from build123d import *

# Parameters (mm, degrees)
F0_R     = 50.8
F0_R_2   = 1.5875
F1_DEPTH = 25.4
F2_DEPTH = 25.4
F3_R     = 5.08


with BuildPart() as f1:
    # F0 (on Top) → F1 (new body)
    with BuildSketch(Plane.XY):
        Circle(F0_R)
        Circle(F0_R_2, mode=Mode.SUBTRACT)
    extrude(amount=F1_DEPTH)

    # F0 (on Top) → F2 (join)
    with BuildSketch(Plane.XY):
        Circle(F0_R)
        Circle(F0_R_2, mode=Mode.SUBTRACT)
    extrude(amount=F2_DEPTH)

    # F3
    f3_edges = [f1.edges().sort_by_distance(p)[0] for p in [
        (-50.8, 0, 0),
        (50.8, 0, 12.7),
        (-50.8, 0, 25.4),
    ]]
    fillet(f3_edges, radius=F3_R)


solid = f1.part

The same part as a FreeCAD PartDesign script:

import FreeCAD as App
import Part
import Sketcher

V = App.Vector
Q = App.Units.Quantity


def edges_at(feature, points):
    """Names of the edges that pass closest to the given points."""
    edges = feature.Shape.Edges
    near = lambda p: min(range(len(edges)), key=lambda i: edges[i].distToShape(Part.Vertex(*p))[0])
    return sorted({f"Edge{near(p) + 1}" for p in points})

doc = App.newDocument("Part")
body = doc.addObject("PartDesign::Body", "Body")

# Sketch on XY plane
sketch1 = body.newObject("Sketcher::SketchObject", "Sketch")
sketch1.AttachmentSupport = (doc.getObject("XY_Plane"), [""])
sketch1.MapMode = "FlatFace"
sketch1.addGeometry([
    Part.Circle(V(0, 0, 0), V(0, 0, 1), 50.8),
    Part.Circle(V(0, 0, 0), V(0, 0, 1), 1.6),
], False)
sketch1.addConstraint([
    Sketcher.Constraint("Coincident", 0, 3, -1, 1),
    Sketcher.Constraint("Coincident", 1, 3, -1, 1),
    Sketcher.Constraint("Diameter", 0, Q("4 in")),
    Sketcher.Constraint("Diameter", 1, Q("0.125 in")),
])
pad1 = body.newObject("PartDesign::Pad", "Pad")
pad1.Profile = sketch1
pad1.Length = Q("1 in")

# Sketch on XY plane
sketch2 = body.newObject("Sketcher::SketchObject", "Sketch001")
sketch2.AttachmentSupport = (doc.getObject("XY_Plane"), [""])
sketch2.MapMode = "FlatFace"
sketch2.addGeometry([
    Part.Circle(V(0, 0, 0), V(0, 0, 1), 50.8),
    Part.Circle(V(0, 0, 0), V(0, 0, 1), 1.6),
], False)
sketch2.addConstraint([
    Sketcher.Constraint("Coincident", 0, 3, -1, 1),
    Sketcher.Constraint("Coincident", 1, 3, -1, 1),
    Sketcher.Constraint("Diameter", 0, Q("4 in")),
    Sketcher.Constraint("Diameter", 1, Q("0.125 in")),
])
pad2 = body.newObject("PartDesign::Pad", "Pad001")
pad2.Profile = sketch2
pad2.Length = Q("1 in")
doc.recompute()

fillet = body.newObject("PartDesign::Fillet", "Fillet")
fillet.Base = (pad2, edges_at(pad2, [(-50.8, 0, 0), (50.8, 0, 12.7), (-50.8, 0, 25.4)]))
fillet.Radius = Q("0.2 in")

doc.recompute()
